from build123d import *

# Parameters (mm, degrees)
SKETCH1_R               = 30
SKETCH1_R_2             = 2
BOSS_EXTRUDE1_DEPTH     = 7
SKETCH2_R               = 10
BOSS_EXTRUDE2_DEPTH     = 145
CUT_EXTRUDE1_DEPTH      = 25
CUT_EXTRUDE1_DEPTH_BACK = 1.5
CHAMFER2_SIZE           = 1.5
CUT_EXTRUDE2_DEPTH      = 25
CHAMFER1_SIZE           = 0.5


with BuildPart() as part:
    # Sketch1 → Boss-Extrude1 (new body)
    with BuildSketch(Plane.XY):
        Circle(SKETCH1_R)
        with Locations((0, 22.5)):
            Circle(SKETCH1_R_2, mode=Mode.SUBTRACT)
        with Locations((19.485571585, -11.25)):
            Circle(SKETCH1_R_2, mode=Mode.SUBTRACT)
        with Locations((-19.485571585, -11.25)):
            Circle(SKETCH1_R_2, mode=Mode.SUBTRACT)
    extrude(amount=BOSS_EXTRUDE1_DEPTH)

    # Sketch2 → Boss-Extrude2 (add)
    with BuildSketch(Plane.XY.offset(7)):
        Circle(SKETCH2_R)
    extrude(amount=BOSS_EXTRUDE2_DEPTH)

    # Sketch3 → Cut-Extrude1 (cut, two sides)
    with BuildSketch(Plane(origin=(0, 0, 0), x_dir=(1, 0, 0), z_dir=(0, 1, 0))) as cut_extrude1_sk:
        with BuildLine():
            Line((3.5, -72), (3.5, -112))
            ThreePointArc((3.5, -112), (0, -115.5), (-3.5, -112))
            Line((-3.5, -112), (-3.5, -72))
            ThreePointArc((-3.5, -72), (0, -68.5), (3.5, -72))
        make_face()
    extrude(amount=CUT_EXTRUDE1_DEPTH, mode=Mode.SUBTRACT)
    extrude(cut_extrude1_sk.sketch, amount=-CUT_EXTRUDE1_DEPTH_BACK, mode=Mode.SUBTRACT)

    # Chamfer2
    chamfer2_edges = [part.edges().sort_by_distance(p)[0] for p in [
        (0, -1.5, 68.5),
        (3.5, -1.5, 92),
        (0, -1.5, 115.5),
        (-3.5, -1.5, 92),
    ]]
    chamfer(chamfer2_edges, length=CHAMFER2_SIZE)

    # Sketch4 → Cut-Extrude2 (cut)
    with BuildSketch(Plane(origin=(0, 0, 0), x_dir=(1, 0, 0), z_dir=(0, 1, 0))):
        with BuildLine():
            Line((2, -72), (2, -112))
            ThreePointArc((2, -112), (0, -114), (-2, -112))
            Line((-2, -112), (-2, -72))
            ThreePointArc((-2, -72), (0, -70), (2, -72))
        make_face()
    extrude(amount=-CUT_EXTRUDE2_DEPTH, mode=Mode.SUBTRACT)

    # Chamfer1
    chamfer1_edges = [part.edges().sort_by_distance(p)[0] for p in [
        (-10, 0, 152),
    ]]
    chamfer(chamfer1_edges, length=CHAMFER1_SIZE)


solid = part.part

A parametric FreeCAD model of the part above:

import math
import FreeCAD as App
import Part
import Sketcher
Q = App.Units.Quantity


def edges_at(feature, points):
    """Names of the edges that pass closest to the given points."""
    edges = feature.Shape.Edges
    near = lambda p: min(range(len(edges)), key=lambda i: edges[i].distToShape(Part.Vertex(*p))[0])
    return sorted({f"Edge{near(p) + 1}" for p in points})

doc = App.newDocument("Part")
body = doc.addObject("PartDesign::Body", "Body")

# Sketch on XY plane
sketch1 = body.newObject("Sketcher::SketchObject", "Sketch")
sketch1.AttachmentSupport = (doc.getObject("XY_Plane"), [""])
sketch1.MapMode = "FlatFace"
sketch1.addGeometry([
    Part.Circle(App.Vector(0, 0, 0), App.Vector(0, 0, 1), 30),
    Part.Circle(App.Vector(-19.5, -11.2, 0), App.Vector(0, 0, 1), 2),
    Part.Circle(App.Vector(19.5, -11.2, 0), App.Vector(0, 0, 1), 2),
    Part.Circle(App.Vector(0, 22.5, 0), App.Vector(0, 0, 1), 2),
], False)
sketch1.addConstraint([
    Sketcher.Constraint("Coincident", 0, 3, -1, 1),
    Sketcher.Constraint("Equal", 1, 2),
    Sketcher.Constraint("Equal", 2, 3),
    Sketcher.Constraint("Symmetric", 1, 3, 2, 3, -2),
    Sketcher.Constraint("PointOnObject", 3, 3, -2),
    Sketcher.Constraint("Diameter", 0, Q("60 mm")),
    Sketcher.Constraint("Diameter", 1, Q("4 mm")),
    Sketcher.Constraint("DistanceY", -1, 1, 3, 3, Q("22.5 mm")),
    Sketcher.Constraint("DistanceY", 1, 3, -1, 1, Q("11.25 mm")),
    Sketcher.Constraint("DistanceX", 1, 3, -1, 1, Q("19.485572 mm")),
])
pad1 = body.newObject("PartDesign::Pad", "Pad")
pad1.Profile = sketch1
pad1.Length = 7

# Sketch on XY plane
sketch2 = body.newObject("Sketcher::SketchObject", "Sketch001")
sketch2.AttachmentSupport = (doc.getObject("XY_Plane"), [""])
sketch2.MapMode = "FlatFace"
sketch2.AttachmentOffset = App.Placement(App.Vector(0, 0, 7), App.Rotation())
sketch2.addGeometry(Part.Circle(App.Vector(0, 0, 0), App.Vector(0, 0, 1), 10), False)
sketch2.addConstraint([
    Sketcher.Constraint("Coincident", 0, 3, -1, 1),
    Sketcher.Constraint("Diameter", 0, Q("20 mm")),
])
pad2 = body.newObject("PartDesign::Pad", "Pad001")
pad2.Profile = sketch2
pad2.Length = 145

# Sketch on XZ plane
sketch3 = body.newObject("Sketcher::SketchObject", "Sketch002")
sketch3.AttachmentSupport = (doc.getObject("XZ_Plane"), [""])
sketch3.MapMode = "FlatFace"
sketch3.addGeometry([
    Part.LineSegment(App.Vector(3.5, 112, 0), App.Vector(3.5, 72, 0)),
    Part.ArcOfCircle(Part.Circle(App.Vector(0, 72, 0), App.Vector(0, 0, 1), 3.5), math.radians(180), math.radians(360)),
    Part.LineSegment(App.Vector(-3.5, 72, 0), App.Vector(-3.5, 112, 0)),
    Part.ArcOfCircle(Part.Circle(App.Vector(0, 112, 0), App.Vector(0, 0, 1), 3.5), math.radians(0), math.radians(180)),
], False)
sketch3.addConstraint([
    Sketcher.Constraint("Tangent", 0, 2, 1, 2),
    Sketcher.Constraint("Tangent", 1, 1, 2, 1),
    Sketcher.Constraint("Tangent", 2, 2, 3, 2),
    Sketcher.Constraint("Tangent", 3, 1, 0, 1),
    Sketcher.Constraint("Vertical", 0),
    Sketcher.Constraint("Vertical", 2),
    Sketcher.Constraint("PointOnObject", 1, 3, -2),
    Sketcher.Constraint("Radius", 1, Q("3.5 mm")),
    Sketcher.Constraint("DistanceY", 0, 2, 0, 1, Q("40 mm")),
    Sketcher.Constraint("DistanceY", -1, 1, 1, 3, Q("72 mm")),
])
pocket1 = body.newObject("PartDesign::Pocket", "Pocket")
pocket1.Profile = sketch3
pocket1.Type = "TwoLengths"
pocket1.Length = 25
pocket1.Length2 = 1.5
doc.recompute()

chamfer = body.newObject("PartDesign::Chamfer", "Chamfer")
chamfer.Base = (pocket1, edges_at(pocket1, [
    (0, -1.5, 68.5),
    (3.5, -1.5, 92),
    (0, -1.5, 115.5),
    (-3.5, -1.5, 92),
]))
chamfer.Size = 1.5

# Sketch on XZ plane
sketch4 = body.newObject("Sketcher::SketchObject", "Sketch003")
sketch4.AttachmentSupport = (doc.getObject("XZ_Plane"), [""])
sketch4.MapMode = "FlatFace"
sketch4.addGeometry([
    Part.LineSegment(App.Vector(2, 112, 0), App.Vector(2, 72, 0)),
    Part.ArcOfCircle(Part.Circle(App.Vector(0, 72, 0), App.Vector(0, 0, 1), 2), math.radians(180), math.radians(360)),
    Part.LineSegment(App.Vector(-2, 72, 0), App.Vector(-2, 112, 0)),
    Part.ArcOfCircle(Part.Circle(App.Vector(0, 112, 0), App.Vector(0, 0, 1), 2), math.radians(0), math.radians(180)),
], False)
sketch4.addConstraint([
    Sketcher.Constraint("Tangent", 0, 2, 1, 2),
    Sketcher.Constraint("Tangent", 1, 1, 2, 1),
    Sketcher.Constraint("Tangent", 2, 2, 3, 2),
    Sketcher.Constraint("Tangent", 3, 1, 0, 1),
    Sketcher.Constraint("Vertical", 0),
    Sketcher.Constraint("Vertical", 2),
    Sketcher.Constraint("PointOnObject", 1, 3, -2),
    Sketcher.Constraint("Radius", 1, Q("2 mm")),
    Sketcher.Constraint("DistanceY", 0, 2, 0, 1, Q("40 mm")),
    Sketcher.Constraint("DistanceY", -1, 1, 1, 3, Q("72 mm")),
])
pocket2 = body.newObject("PartDesign::Pocket", "Pocket001")
pocket2.Profile = sketch4
pocket2.Length = 25
pocket2.Reversed = True
doc.recompute()

chamfer2 = body.newObject("PartDesign::Chamfer", "Chamfer001")
chamfer2.Base = (pocket2, edges_at(pocket2, [(-10, 0, 152)]))
chamfer2.Size = 0.5

doc.recompute()
